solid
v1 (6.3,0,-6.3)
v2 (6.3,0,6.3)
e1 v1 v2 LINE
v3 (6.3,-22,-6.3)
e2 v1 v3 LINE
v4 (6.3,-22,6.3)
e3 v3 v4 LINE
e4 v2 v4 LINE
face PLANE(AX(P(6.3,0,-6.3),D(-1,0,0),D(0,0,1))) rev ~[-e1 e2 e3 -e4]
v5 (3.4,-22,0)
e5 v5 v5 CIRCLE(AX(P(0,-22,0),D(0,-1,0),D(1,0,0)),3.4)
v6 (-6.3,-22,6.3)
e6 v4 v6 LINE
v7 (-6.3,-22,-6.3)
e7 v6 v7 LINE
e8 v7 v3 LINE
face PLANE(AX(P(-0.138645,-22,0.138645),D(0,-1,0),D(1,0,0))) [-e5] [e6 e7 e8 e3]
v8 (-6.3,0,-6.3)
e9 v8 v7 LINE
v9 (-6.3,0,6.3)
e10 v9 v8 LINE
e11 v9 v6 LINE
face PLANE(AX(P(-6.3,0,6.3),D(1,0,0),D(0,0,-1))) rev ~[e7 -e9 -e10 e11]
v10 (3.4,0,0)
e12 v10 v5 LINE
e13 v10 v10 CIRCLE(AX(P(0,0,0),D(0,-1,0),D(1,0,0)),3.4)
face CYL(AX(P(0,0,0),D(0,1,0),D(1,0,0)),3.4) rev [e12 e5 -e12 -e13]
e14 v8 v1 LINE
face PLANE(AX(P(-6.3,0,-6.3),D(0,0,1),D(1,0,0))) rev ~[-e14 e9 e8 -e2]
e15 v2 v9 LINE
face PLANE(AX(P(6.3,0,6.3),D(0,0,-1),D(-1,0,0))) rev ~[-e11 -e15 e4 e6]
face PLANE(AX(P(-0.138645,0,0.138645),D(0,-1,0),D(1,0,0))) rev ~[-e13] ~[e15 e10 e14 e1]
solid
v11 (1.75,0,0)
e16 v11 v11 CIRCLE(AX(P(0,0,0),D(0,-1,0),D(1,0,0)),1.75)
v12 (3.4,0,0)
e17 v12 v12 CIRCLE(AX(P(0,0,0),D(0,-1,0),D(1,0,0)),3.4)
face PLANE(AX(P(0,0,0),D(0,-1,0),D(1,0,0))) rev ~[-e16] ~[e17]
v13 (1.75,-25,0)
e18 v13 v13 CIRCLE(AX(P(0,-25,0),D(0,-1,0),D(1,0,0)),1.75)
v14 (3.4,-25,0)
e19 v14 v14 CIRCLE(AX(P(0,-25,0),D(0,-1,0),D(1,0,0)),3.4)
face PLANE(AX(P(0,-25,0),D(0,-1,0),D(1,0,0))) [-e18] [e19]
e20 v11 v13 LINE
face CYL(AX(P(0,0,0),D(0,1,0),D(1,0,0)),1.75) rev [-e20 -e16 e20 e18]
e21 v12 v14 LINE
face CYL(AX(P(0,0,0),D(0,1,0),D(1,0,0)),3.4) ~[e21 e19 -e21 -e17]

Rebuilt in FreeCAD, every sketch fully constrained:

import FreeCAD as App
import Part
import Sketcher
Q = App.Units.Quantity

doc = App.newDocument("Part")
params = doc.addObject("Spreadsheet::Sheet", "Params")
for row, (alias, value) in enumerate([
    ("sketch1_diameter", "6.8 mm"),
    ("sketch1_diameter2", "3.5 mm"),
    ("pad1_length", "25 mm"),
    ("sketch2_diameter", "6.8 mm"),
    ("sketch2_width", "12.6 mm"),
    ("pad2_length", "22 mm"),
], start=1):
    params.set(f"A{row}", alias)
    params.set(f"B{row}", "=" + value)
    params.setAlias(f"B{row}", alias)

body = doc.addObject("PartDesign::Body", "Body")

sketch1 = body.newObject("Sketcher::SketchObject", "Sketch")
sketch1.AttachmentSupport = (doc.getObject("XZ_Plane"), [""])
sketch1.MapMode = "FlatFace"
sketch1.addGeometry([
    Part.Circle(App.Vector(0, 0, 0), App.Vector(0, 0, 1), 3.4),
    Part.Circle(App.Vector(0, 0, 0), App.Vector(0, 0, 1), 1.8),
], False)
sketch1.addConstraint([
    Sketcher.Constraint("Coincident", 0, 3, -1, 1),
    Sketcher.Constraint("Coincident", 1, 3, -1, 1),
    Sketcher.Constraint("Diameter", 0, Q("6.8 mm")),
    Sketcher.Constraint("Diameter", 1, Q("3.5 mm")),
])
sketch1.setExpression("Constraints[2]", "Params.sketch1_diameter")
sketch1.setExpression("Constraints[3]", "Params.sketch1_diameter2")
pad1 = body.newObject("PartDesign::Pad", "Pad")
pad1.Profile = sketch1
pad1.setExpression("Length", "Params.pad1_length")
body2 = doc.addObject("PartDesign::Body", "Body001")

sketch2 = body2.newObject("Sketcher::SketchObject", "Sketch001")
sketch2.AttachmentSupport = (doc.getObject("XZ_Plane001"), [""])
sketch2.MapMode = "FlatFace"
sketch2.addGeometry([
    Part.LineSegment(App.Vector(6.3, 6.3, 0), App.Vector(-6.3, 6.3, 0)),
    Part.LineSegment(App.Vector(-6.3, 6.3, 0), App.Vector(-6.3, -6.3, 0)),
    Part.LineSegment(App.Vector(-6.3, -6.3, 0), App.Vector(6.3, -6.3, 0)),
    Part.LineSegment(App.Vector(6.3, -6.3, 0), App.Vector(6.3, 6.3, 0)),
    Part.Circle(App.Vector(0, 0, 0), App.Vector(0, 0, 1), 3.4),
], False)
sketch2.addConstraint([
    Sketcher.Constraint("Coincident", 0, 2, 1, 1),
    Sketcher.Constraint("Coincident", 1, 2, 2, 1),
    Sketcher.Constraint("Coincident", 2, 2, 3, 1),
    Sketcher.Constraint("Coincident", 3, 2, 0, 1),
    Sketcher.Constraint("Horizontal", 0),
    Sketcher.Constraint("Vertical", 1),
    Sketcher.Constraint("Horizontal", 2),
    Sketcher.Constraint("Vertical", 3),
    Sketcher.Constraint("Coincident", 4, 3, -1, 1),
    Sketcher.Constraint("Symmetric", 0, 2, 2, 2, -1, 1),
    Sketcher.Constraint("Equal", 2, 1),
    Sketcher.Constraint("Diameter", 4, Q("6.8 mm")),
    Sketcher.Constraint("DistanceX", 0, 2, 0, 1, Q("12.6 mm")),
])
sketch2.setExpression("Constraints[11]", "Params.sketch2_diameter")
sketch2.setExpression("Constraints[12]", "Params.sketch2_width")
pad2 = body2.newObject("PartDesign::Pad", "Pad001")
pad2.Profile = sketch2
pad2.setExpression("Length", "Params.pad2_length")

doc.recompute()
